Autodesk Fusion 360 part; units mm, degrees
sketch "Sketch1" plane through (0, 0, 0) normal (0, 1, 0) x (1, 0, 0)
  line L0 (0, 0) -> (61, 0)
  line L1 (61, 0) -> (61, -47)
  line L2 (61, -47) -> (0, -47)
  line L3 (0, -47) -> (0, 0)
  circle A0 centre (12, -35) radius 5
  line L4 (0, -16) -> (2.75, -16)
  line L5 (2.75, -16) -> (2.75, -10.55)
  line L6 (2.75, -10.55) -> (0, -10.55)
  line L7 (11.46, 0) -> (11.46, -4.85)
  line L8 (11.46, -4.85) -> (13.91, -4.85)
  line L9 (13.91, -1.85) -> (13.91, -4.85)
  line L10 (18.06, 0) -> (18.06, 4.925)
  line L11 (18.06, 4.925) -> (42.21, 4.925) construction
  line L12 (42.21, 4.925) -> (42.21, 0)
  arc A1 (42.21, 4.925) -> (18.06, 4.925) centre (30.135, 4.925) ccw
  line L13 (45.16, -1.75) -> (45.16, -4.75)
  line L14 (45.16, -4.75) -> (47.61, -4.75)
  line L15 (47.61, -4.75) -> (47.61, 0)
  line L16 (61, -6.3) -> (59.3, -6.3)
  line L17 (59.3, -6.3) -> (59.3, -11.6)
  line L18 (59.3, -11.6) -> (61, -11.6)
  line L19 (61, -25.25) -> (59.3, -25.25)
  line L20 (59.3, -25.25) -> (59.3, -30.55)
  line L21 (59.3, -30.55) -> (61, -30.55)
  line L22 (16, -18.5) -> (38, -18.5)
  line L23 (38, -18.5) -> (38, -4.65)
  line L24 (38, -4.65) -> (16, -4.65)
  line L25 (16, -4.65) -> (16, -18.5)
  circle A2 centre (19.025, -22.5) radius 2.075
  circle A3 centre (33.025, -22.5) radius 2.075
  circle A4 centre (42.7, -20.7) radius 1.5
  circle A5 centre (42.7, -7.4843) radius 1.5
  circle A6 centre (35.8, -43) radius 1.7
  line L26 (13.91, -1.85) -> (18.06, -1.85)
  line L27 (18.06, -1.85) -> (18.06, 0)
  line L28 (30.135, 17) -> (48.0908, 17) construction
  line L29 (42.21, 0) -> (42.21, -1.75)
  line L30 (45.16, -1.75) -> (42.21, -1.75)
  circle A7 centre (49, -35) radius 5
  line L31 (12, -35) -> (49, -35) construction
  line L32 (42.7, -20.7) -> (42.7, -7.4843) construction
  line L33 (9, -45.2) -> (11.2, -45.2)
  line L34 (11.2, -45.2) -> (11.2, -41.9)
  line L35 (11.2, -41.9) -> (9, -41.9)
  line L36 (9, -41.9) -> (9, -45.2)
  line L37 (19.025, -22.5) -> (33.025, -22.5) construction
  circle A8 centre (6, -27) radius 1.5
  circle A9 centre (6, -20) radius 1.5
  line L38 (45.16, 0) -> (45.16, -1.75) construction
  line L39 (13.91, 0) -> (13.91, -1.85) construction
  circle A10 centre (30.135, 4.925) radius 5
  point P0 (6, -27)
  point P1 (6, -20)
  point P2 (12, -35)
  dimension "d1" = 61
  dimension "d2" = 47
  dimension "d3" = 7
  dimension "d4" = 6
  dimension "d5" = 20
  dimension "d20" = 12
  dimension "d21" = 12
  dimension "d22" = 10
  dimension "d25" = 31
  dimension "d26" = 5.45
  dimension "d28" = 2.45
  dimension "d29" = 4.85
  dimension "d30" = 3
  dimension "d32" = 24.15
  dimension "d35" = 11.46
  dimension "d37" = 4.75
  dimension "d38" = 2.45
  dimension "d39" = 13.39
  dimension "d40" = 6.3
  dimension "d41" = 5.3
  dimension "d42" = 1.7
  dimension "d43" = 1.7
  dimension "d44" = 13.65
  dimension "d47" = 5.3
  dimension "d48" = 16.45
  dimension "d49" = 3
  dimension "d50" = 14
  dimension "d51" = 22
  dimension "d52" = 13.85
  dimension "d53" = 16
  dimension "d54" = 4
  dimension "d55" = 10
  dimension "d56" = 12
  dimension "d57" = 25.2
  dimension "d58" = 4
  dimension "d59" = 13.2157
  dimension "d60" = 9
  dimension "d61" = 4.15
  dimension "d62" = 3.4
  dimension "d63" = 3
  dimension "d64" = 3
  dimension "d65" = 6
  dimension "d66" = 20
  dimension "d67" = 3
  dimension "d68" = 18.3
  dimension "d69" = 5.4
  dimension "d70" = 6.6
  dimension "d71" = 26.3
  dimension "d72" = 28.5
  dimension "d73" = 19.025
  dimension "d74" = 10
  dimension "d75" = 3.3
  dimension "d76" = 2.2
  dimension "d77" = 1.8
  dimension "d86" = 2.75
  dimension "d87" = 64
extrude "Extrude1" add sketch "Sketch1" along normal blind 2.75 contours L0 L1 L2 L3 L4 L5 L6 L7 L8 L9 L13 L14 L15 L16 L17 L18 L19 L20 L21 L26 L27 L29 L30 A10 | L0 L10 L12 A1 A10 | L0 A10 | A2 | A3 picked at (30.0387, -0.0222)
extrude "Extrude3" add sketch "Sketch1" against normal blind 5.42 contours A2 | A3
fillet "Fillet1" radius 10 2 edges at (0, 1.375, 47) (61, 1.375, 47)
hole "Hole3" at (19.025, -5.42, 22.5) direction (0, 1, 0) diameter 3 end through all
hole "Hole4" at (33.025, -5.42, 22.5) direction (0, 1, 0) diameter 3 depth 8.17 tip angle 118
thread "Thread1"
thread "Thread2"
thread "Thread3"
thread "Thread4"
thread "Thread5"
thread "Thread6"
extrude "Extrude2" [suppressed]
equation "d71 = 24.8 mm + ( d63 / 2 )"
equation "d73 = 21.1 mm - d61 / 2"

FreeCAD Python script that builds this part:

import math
import FreeCAD as App
import Part
import Sketcher


def edges_at(feature, points):
    """Names of the edges that pass closest to the given points."""
    edges = feature.Shape.Edges
    near = lambda p: min(range(len(edges)), key=lambda i: edges[i].distToShape(Part.Vertex(*p))[0])
    return sorted({f"Edge{near(p) + 1}" for p in points})

doc = App.newDocument("Part")
body = doc.addObject("PartDesign::Body", "Body")

sketch1 = body.newObject("Sketcher::SketchObject", "Sketch")
sketch1.AttachmentSupport = (doc.getObject("XZ_Plane"), [""])
sketch1.MapMode = "FlatFace"
sketch1.addGeometry(Part.LineSegment(App.Vector(11.5, 0, 0), App.Vector(0, 0, 0)), False)
sketch1.addGeometry(Part.LineSegment(App.Vector(0, 0, 0), App.Vector(0, 10.6, 0)), False)
sketch1.addGeometry(Part.LineSegment(App.Vector(0, 10.6, 0), App.Vector(2.8, 10.6, 0)), False)
sketch1.addGeometry(Part.LineSegment(App.Vector(2.8, 10.6, 0), App.Vector(2.8, 16, 0)), False)
sketch1.addGeometry(Part.LineSegment(App.Vector(2.8, 16, 0), App.Vector(0, 16, 0)), False)
sketch1.addGeometry(Part.LineSegment(App.Vector(0, 16, 0), App.Vector(0, 47, 0)), False)
sketch1.addGeometry(Part.LineSegment(App.Vector(0, 47, 0), App.Vector(61, 47, 0)), False)
sketch1.addGeometry(Part.LineSegment(App.Vector(61, 47, 0), App.Vector(61, 30.6, 0)), False)
sketch1.addGeometry(Part.LineSegment(App.Vector(61, 30.6, 0), App.Vector(59.3, 30.6, 0)), False)
sketch1.addGeometry(Part.LineSegment(App.Vector(59.3, 30.6, 0), App.Vector(59.3, 25.2, 0)), False)
sketch1.addGeometry(Part.LineSegment(App.Vector(59.3, 25.2, 0), App.Vector(61, 25.2, 0)), False)
sketch1.addGeometry(Part.LineSegment(App.Vector(61, 25.2, 0), App.Vector(61, 11.6, 0)), False)
sketch1.addGeometry(Part.LineSegment(App.Vector(61, 11.6, 0), App.Vector(59.3, 11.6, 0)), False)
sketch1.addGeometry(Part.LineSegment(App.Vector(59.3, 11.6, 0), App.Vector(59.3, 6.3, 0)), False)
sketch1.addGeometry(Part.LineSegment(App.Vector(59.3, 6.3, 0), App.Vector(61, 6.3, 0)), False)
sketch1.addGeometry(Part.LineSegment(App.Vector(61, 6.3, 0), App.Vector(61, 0, 0)), False)
sketch1.addGeometry(Part.LineSegment(App.Vector(61, 0, 0), App.Vector(47.6, 0, 0)), False)
sketch1.addGeometry(Part.LineSegment(App.Vector(47.6, 0, 0), App.Vector(47.6, 4.8, 0)), False)
sketch1.addGeometry(Part.LineSegment(App.Vector(47.6, 4.8, 0), App.Vector(45.2, 4.8, 0)), False)
sketch1.addGeometry(Part.LineSegment(App.Vector(45.2, 4.8, 0), App.Vector(45.2, 1.8, 0)), False)
sketch1.addGeometry(Part.LineSegment(App.Vector(45.2, 1.8, 0), App.Vector(42.2, 1.8, 0)), False)
sketch1.addGeometry(Part.LineSegment(App.Vector(42.2, 1.8, 0), App.Vector(42.2, -4.9, 0)), False)
sketch1.addGeometry(Part.ArcOfCircle(Part.Circle(App.Vector(30.1, -4.9, 0), App.Vector(0, 0, 1), 12.1), math.radians(180), math.radians(360)), False)
sketch1.addGeometry(Part.LineSegment(App.Vector(18.1, -4.9, 0), App.Vector(18.1, 1.9, 0)), False)
sketch1.addGeometry(Part.LineSegment(App.Vector(18.1, 1.9, 0), App.Vector(13.9, 1.9, 0)), False)
sketch1.addGeometry(Part.LineSegment(App.Vector(13.9, 1.9, 0), App.Vector(13.9, 4.8, 0)), False)
sketch1.addGeometry(Part.LineSegment(App.Vector(13.9, 4.8, 0), App.Vector(11.5, 4.8, 0)), False)
sketch1.addGeometry(Part.LineSegment(App.Vector(11.5, 4.8, 0), App.Vector(11.5, 0, 0)), False)
sketch1.addGeometry(Part.LineSegment(App.Vector(11.2, 45.2, 0), App.Vector(9, 45.2, 0)), False)
sketch1.addGeometry(Part.LineSegment(App.Vector(9, 45.2, 0), App.Vector(9, 41.9, 0)), False)
sketch1.addGeometry(Part.LineSegment(App.Vector(9, 41.9, 0), App.Vector(11.2, 41.9, 0)), False)
sketch1.addGeometry(Part.LineSegment(App.Vector(11.2, 41.9, 0), App.Vector(11.2, 45.2, 0)), False)
sketch1.addGeometry(Part.Circle(App.Vector(12, 35, 0), App.Vector(0, 0, 1), 5), False)
sketch1.addGeometry(Part.Circle(App.Vector(6, 27, 0), App.Vector(0, 0, 1), 1.5), False)
sketch1.addGeometry(Part.Circle(App.Vector(6, 20, 0), App.Vector(0, 0, 1), 1.5), False)
sketch1.addGeometry(Part.Circle(App.Vector(35.8, 43, 0), App.Vector(0, 0, 1), 1.7), False)
sketch1.addGeometry(Part.Circle(App.Vector(49, 35, 0), App.Vector(0, 0, 1), 5), False)
sketch1.addGeometry(Part.Circle(App.Vector(42.7, 20.7, 0), App.Vector(0, 0, 1), 1.5), False)
sketch1.addGeometry(Part.LineSegment(App.Vector(38, 18.5, 0), App.Vector(16, 18.5, 0)), False)
sketch1.addGeometry(Part.LineSegment(App.Vector(16, 18.5, 0), App.Vector(16, 4.7, 0)), False)
sketch1.addGeometry(Part.LineSegment(App.Vector(16, 4.7, 0), App.Vector(38, 4.7, 0)), False)
sketch1.addGeometry(Part.LineSegment(App.Vector(38, 4.7, 0), App.Vector(38, 18.5, 0)), False)
sketch1.addGeometry(Part.Circle(App.Vector(42.7, 7.5, 0), App.Vector(0, 0, 1), 1.5), False)
sketch1.addGeometry(Part.ArcOfCircle(Part.Circle(App.Vector(30.1, -4.9, 0), App.Vector(0, 0, 1), 5), math.radians(100), math.radians(440)), False)
sketch1.addGeometry(Part.LineSegment(App.Vector(31, 0, 0), App.Vector(29.3, 0, 0)), False)
sketch1.addConstraint(Sketcher.Constraint("Coincident", 0, 2, 1, 1))
sketch1.addConstraint(Sketcher.Constraint("Coincident", 1, 2, 2, 1))
sketch1.addConstraint(Sketcher.Constraint("Coincident", 2, 2, 3, 1))
sketch1.addConstraint(Sketcher.Constraint("Coincident", 3, 2, 4, 1))
sketch1.addConstraint(Sketcher.Constraint("Coincident", 4, 2, 5, 1))
sketch1.addConstraint(Sketcher.Constraint("Coincident", 5, 2, 6, 1))
sketch1.addConstraint(Sketcher.Constraint("Coincident", 6, 2, 7, 1))
sketch1.addConstraint(Sketcher.Constraint("Coincident", 7, 2, 8, 1))
sketch1.addConstraint(Sketcher.Constraint("Coincident", 8, 2, 9, 1))
sketch1.addConstraint(Sketcher.Constraint("Coincident", 9, 2, 10, 1))
sketch1.addConstraint(Sketcher.Constraint("Coincident", 10, 2, 11, 1))
sketch1.addConstraint(Sketcher.Constraint("Coincident", 11, 2, 12, 1))
sketch1.addConstraint(Sketcher.Constraint("Coincident", 12, 2, 13, 1))
sketch1.addConstraint(Sketcher.Constraint("Coincident", 13, 2, 14, 1))
sketch1.addConstraint(Sketcher.Constraint("Coincident", 14, 2, 15, 1))
sketch1.addConstraint(Sketcher.Constraint("Coincident", 15, 2, 16, 1))
sketch1.addConstraint(Sketcher.Constraint("Coincident", 16, 2, 17, 1))
sketch1.addConstraint(Sketcher.Constraint("Coincident", 17, 2, 18, 1))
sketch1.addConstraint(Sketcher.Constraint("Coincident", 18, 2, 19, 1))
sketch1.addConstraint(Sketcher.Constraint("Coincident", 19, 2, 20, 1))
sketch1.addConstraint(Sketcher.Constraint("Coincident", 20, 2, 21, 1))
sketch1.addConstraint(Sketcher.Constraint("Tangent", 21, 2, 22, 2))
sketch1.addConstraint(Sketcher.Constraint("Tangent", 22, 1, 23, 1))
sketch1.addConstraint(Sketcher.Constraint("Coincident", 23, 2, 24, 1))
sketch1.addConstraint(Sketcher.Constraint("Coincident", 24, 2, 25, 1))
sketch1.addConstraint(Sketcher.Constraint("Coincident", 25, 2, 26, 1))
sketch1.addConstraint(Sketcher.Constraint("Coincident", 26, 2, 27, 1))
sketch1.addConstraint(Sketcher.Constraint("Coincident", 27, 2, 0, 1))
sketch1.addConstraint(Sketcher.Constraint("Coincident", 28, 2, 29, 1))
sketch1.addConstraint(Sketcher.Constraint("Coincident", 29, 2, 30, 1))
sketch1.addConstraint(Sketcher.Constraint("Coincident", 30, 2, 31, 1))
sketch1.addConstraint(Sketcher.Constraint("Coincident", 31, 2, 28, 1))
sketch1.addConstraint(Sketcher.Constraint("Coincident", 38, 2, 39, 1))
sketch1.addConstraint(Sketcher.Constraint("Coincident", 39, 2, 40, 1))
sketch1.addConstraint(Sketcher.Constraint("Coincident", 40, 2, 41, 1))
sketch1.addConstraint(Sketcher.Constraint("Coincident", 41, 2, 38, 1))
sketch1.addConstraint(Sketcher.Constraint("Coincident", 43, 1, 44, 2))
sketch1.addConstraint(Sketcher.Constraint("Coincident", 44, 1, 43, 2))
sketch1.addConstraint(Sketcher.Constraint("Horizontal", 0))
sketch1.addConstraint(Sketcher.Constraint("Vertical", 1))
sketch1.addConstraint(Sketcher.Constraint("Horizontal", 2))
sketch1.addConstraint(Sketcher.Constraint("Vertical", 3))
sketch1.addConstraint(Sketcher.Constraint("Horizontal", 4))
sketch1.addConstraint(Sketcher.Constraint("Vertical", 5))
sketch1.addConstraint(Sketcher.Constraint("Horizontal", 6))
sketch1.addConstraint(Sketcher.Constraint("Vertical", 7))
sketch1.addConstraint(Sketcher.Constraint("Horizontal", 8))
sketch1.addConstraint(Sketcher.Constraint("Vertical", 9))
sketch1.addConstraint(Sketcher.Constraint("Horizontal", 10))
sketch1.addConstraint(Sketcher.Constraint("Vertical", 11))
sketch1.addConstraint(Sketcher.Constraint("Horizontal", 12))
sketch1.addConstraint(Sketcher.Constraint("Vertical", 13))
sketch1.addConstraint(Sketcher.Constraint("Horizontal", 14))
sketch1.addConstraint(Sketcher.Constraint("Vertical", 15))
sketch1.addConstraint(Sketcher.Constraint("Horizontal", 16))
sketch1.addConstraint(Sketcher.Constraint("Vertical", 17))
sketch1.addConstraint(Sketcher.Constraint("Horizontal", 18))
sketch1.addConstraint(Sketcher.Constraint("Vertical", 19))
sketch1.addConstraint(Sketcher.Constraint("Horizontal", 20))
sketch1.addConstraint(Sketcher.Constraint("Vertical", 21))
sketch1.addConstraint(Sketcher.Constraint("Vertical", 23))
sketch1.addConstraint(Sketcher.Constraint("Horizontal", 24))
sketch1.addConstraint(Sketcher.Constraint("Vertical", 25))
sketch1.addConstraint(Sketcher.Constraint("Horizontal", 26))
sketch1.addConstraint(Sketcher.Constraint("Vertical", 27))
sketch1.addConstraint(Sketcher.Constraint("Horizontal", 28))
sketch1.addConstraint(Sketcher.Constraint("Vertical", 29))
sketch1.addConstraint(Sketcher.Constraint("Horizontal", 30))
sketch1.addConstraint(Sketcher.Constraint("Vertical", 31))
sketch1.addConstraint(Sketcher.Constraint("Horizontal", 38))
sketch1.addConstraint(Sketcher.Constraint("Vertical", 39))
sketch1.addConstraint(Sketcher.Constraint("Horizontal", 40))
sketch1.addConstraint(Sketcher.Constraint("Vertical", 41))
sketch1.addConstraint(Sketcher.Constraint("Horizontal", 44))
sketch1.addConstraint(Sketcher.Constraint("Coincident", 0, 2, -1, 1))
sketch1.addConstraint(Sketcher.Constraint("Coincident", 43, 3, 22, 3))
sketch1.addConstraint(Sketcher.Constraint("Equal", 33, 34))
sketch1.addConstraint(Sketcher.Constraint("Equal", 32, 36))
sketch1.addConstraint(Sketcher.Constraint("Equal", 34, 37))
sketch1.addConstraint(Sketcher.Constraint("Equal", 37, 42))
sketch1.addConstraint(Sketcher.Constraint("Equal", 36, 43))
sketch1.addConstraint(Sketcher.Constraint("PointOnObject", 4, 2, -2))
sketch1.addConstraint(Sketcher.Constraint("PointOnObject", 15, 2, -1))
sketch1.addConstraint(Sketcher.Constraint("PointOnObject", 43, 1, -1))
sketch1.addConstraint(Sketcher.Constraint("Horizontal", 32, 3, 36, 3))
sketch1.addConstraint(Sketcher.Constraint("Vertical", 33, 3, 34, 3))
sketch1.addConstraint(Sketcher.Constraint("Vertical", 37, 3, 42, 3))
sketch1.addConstraint(Sketcher.Constraint("Vertical", 7, 2, 10, 2))
sketch1.addConstraint(Sketcher.Constraint("Vertical", 9, 2, 12, 2))
sketch1.addConstraint(Sketcher.Constraint("Vertical", 11, 2, 14, 2))
sketch1.addConstraint(Sketcher.Constraint("Equal", 18, 26))
sketch1.addConstraint(Sketcher.Constraint("Equal", 9, 13))
sketch1.addConstraint(Sketcher.Constraint("Equal", 19, 25))
sketch1.addConstraint(Sketcher.Constraint("Diameter", 32, 10.0))
sketch1.addConstraint(Sketcher.Constraint("Diameter", 33, 3.0))
sketch1.addConstraint(Sketcher.Constraint("Diameter", 35, 3.4))
sketch1.addConstraint(Sketcher.Constraint("DistanceX", 6, 1, 6, 2, 61.0))
sketch1.addConstraint(Sketcher.Constraint("DistanceX", 38, 2, 38, 1, 22.0))
sketch1.addConstraint(Sketcher.Constraint("DistanceY", 5, 1, 5, 2, 31.0))
sketch1.addConstraint(Sketcher.Constraint("DistanceY", 19, 2, 19, 1, 3.0))
sketch1.addConstraint(Sketcher.Constraint("DistanceX", 8, 2, 8, 1, 1.7))
sketch1.addConstraint(Sketcher.Constraint("DistanceX", 28, 2, 28, 1, 2.2))
sketch1.addConstraint(Sketcher.Constraint("DistanceY", 9, 2, 9, 1, 5.3))
sketch1.addConstraint(Sketcher.Constraint("DistanceY", 15, 2, 15, 1, 6.3))
sketch1.addConstraint(Sketcher.Constraint("DistanceY", 29, 2, 29, 1, 3.3))
sketch1.addConstraint(Sketcher.Constraint("DistanceX", -1, 1, 32, 3, 12.0))
sketch1.addConstraint(Sketcher.Constraint("DistanceX", -1, 1, 33, 3, 6.0))
sketch1.addConstraint(Sketcher.Constraint("DistanceY", -1, 1, 34, 3, 20.0))
sketch1.addConstraint(Sketcher.Constraint("DistanceY", -1, 1, 3, 2, 16.0))
sketch1.addConstraint(Sketcher.Constraint("DistanceX", -1, 1, 28, 2, 9.0))
sketch1.addConstraint(Sketcher.Constraint("DistanceX", -1, 1, 38, 2, 16.0))
sketch1.addConstraint(Sketcher.Constraint("Radius", 22, 12.075))
sketch1.addConstraint(Sketcher.Constraint("DistanceY", 34, 3, 33, 3, 7.0))
sketch1.addConstraint(Sketcher.Constraint("DistanceY", 33, 3, 35, 3, 16.0))
sketch1.addConstraint(Sketcher.Constraint("DistanceY", 32, 3, 5, 2, 12.0))
sketch1.addConstraint(Sketcher.Constraint("DistanceX", 36, 3, 6, 2, 12.0))
sketch1.addConstraint(Sketcher.Constraint("DistanceX", 0, 2, 0, 1, 11.46))
sketch1.addConstraint(Sketcher.Constraint("DistanceX", 2, 1, 2, 2, 2.75))
sketch1.addConstraint(Sketcher.Constraint("DistanceX", 16, 2, 16, 1, 13.39))
sketch1.addConstraint(Sketcher.Constraint("DistanceX", 18, 2, 18, 1, 2.45))
sketch1.addConstraint(Sketcher.Constraint("DistanceX", 24, 2, 24, 1, 4.15))
sketch1.addConstraint(Sketcher.Constraint("DistanceY", 3, 1, 3, 2, 5.45))
sketch1.addConstraint(Sketcher.Constraint("DistanceY", 7, 2, 7, 1, 16.45))
sketch1.addConstraint(Sketcher.Constraint("DistanceY", 17, 1, 17, 2, 4.75))
sketch1.addConstraint(Sketcher.Constraint("DistanceY", 27, 2, 27, 1, 4.85))
sketch1.addConstraint(Sketcher.Constraint("DistanceY", 39, 2, 39, 1, 13.85))
sketch1.addConstraint(Sketcher.Constraint("DistanceX", 37, 3, 36, 3, 6.3))
sketch1.addConstraint(Sketcher.Constraint("DistanceX", 35, 3, 6, 2, 25.2))
sketch1.addConstraint(Sketcher.Constraint("DistanceY", 37, 3, 6, 2, 26.3))
sketch1.addConstraint(Sketcher.Constraint("DistanceY", 28, 2, 5, 2, 1.8))
sketch1.addConstraint(Sketcher.Constraint("DistanceY", 41, 2, 37, 3, 2.2))
sketch1.addConstraint(Sketcher.Constraint("DistanceY", 42, 3, 37, 3, 13.2157))
sketch1.addConstraint(Sketcher.Constraint("DistanceY", 21, 2, 21, 1, 6.675))
pad1 = body.newObject("PartDesign::Pad", "Pad")
pad1.Profile = sketch1
pad1.Length = 2.75
pad1.Reversed = True

sketch2 = body.newObject("Sketcher::SketchObject", "Sketch001")
sketch2.AttachmentSupport = (doc.getObject("XZ_Plane"), [""])
sketch2.MapMode = "FlatFace"
sketch2.addGeometry(Part.Circle(App.Vector(19, 22.5, 0), App.Vector(0, 0, 1), 2.1), False)
sketch2.addGeometry(Part.Circle(App.Vector(33, 22.5, 0), App.Vector(0, 0, 1), 2.1), False)
sketch2.addConstraint(Sketcher.Constraint("Equal", 0, 1))
sketch2.addConstraint(Sketcher.Constraint("Horizontal", 0, 3, 1, 3))
sketch2.addConstraint(Sketcher.Constraint("Diameter", 0, 4.15))
sketch2.addConstraint(Sketcher.Constraint("DistanceX", 0, 3, 1, 3, 14.0))
sketch2.addConstraint(Sketcher.Constraint("DistanceX", -1, 1, 0, 3, 19.025))
sketch2.addConstraint(Sketcher.Constraint("DistanceY", -1, 1, 0, 3, 22.5))
pad2 = body.newObject("PartDesign::Pad", "Pad001")
pad2.Profile = sketch2
pad2.Length = 5.42
doc.recompute()

fillet = body.newObject("PartDesign::Fillet", "Fillet")
fillet.Base = (pad2, edges_at(pad2, [(0, 1.375, 47), (61, 1.375, 47)]))
fillet.Radius = 10

sketch3 = body.newObject("Sketcher::SketchObject", "Sketch002")
sketch3.AttachmentSupport = (doc.getObject("XZ_Plane"), [""])
sketch3.MapMode = "FlatFace"
sketch3.AttachmentOffset = App.Placement(App.Vector(0, 0, 5.42), App.Rotation())
sketch3.addGeometry(Part.Circle(App.Vector(19, 22.5, 0), App.Vector(0, 0, 1), 1.5), False)
sketch3.addConstraint(Sketcher.Constraint("Diameter", 0, 3.0))
sketch3.addConstraint(Sketcher.Constraint("DistanceY", -1, 1, 0, 3, 22.5))
sketch3.addConstraint(Sketcher.Constraint("DistanceX", -1, 1, 0, 3, 19.025))
doc.recompute()
hole = body.newObject("PartDesign::Hole", "Hole")
hole.Profile = sketch3
hole.ThreadType = "None"
hole.Diameter = 3
hole.DepthType = "ThroughAll"

sketch4 = body.newObject("Sketcher::SketchObject", "Sketch003")
sketch4.AttachmentSupport = (doc.getObject("XZ_Plane"), [""])
sketch4.MapMode = "FlatFace"
sketch4.AttachmentOffset = App.Placement(App.Vector(0, 0, 5.42), App.Rotation())
sketch4.addGeometry(Part.Circle(App.Vector(33, 22.5, 0), App.Vector(0, 0, 1), 1.5), False)
sketch4.addConstraint(Sketcher.Constraint("Diameter", 0, 3.0))
sketch4.addConstraint(Sketcher.Constraint("DistanceY", -1, 1, 0, 3, 22.5))
sketch4.addConstraint(Sketcher.Constraint("DistanceX", -1, 1, 0, 3, 33.025))
doc.recompute()
hole2 = body.newObject("PartDesign::Hole", "Hole001")
hole2.Profile = sketch4
hole2.ThreadType = "None"
hole2.Diameter = 3
hole2.DepthType = "Dimension"
hole2.Depth = 8.17
hole2.DrillPoint = "Angled"
hole2.DrillPointAngle = 118

doc.recompute()
